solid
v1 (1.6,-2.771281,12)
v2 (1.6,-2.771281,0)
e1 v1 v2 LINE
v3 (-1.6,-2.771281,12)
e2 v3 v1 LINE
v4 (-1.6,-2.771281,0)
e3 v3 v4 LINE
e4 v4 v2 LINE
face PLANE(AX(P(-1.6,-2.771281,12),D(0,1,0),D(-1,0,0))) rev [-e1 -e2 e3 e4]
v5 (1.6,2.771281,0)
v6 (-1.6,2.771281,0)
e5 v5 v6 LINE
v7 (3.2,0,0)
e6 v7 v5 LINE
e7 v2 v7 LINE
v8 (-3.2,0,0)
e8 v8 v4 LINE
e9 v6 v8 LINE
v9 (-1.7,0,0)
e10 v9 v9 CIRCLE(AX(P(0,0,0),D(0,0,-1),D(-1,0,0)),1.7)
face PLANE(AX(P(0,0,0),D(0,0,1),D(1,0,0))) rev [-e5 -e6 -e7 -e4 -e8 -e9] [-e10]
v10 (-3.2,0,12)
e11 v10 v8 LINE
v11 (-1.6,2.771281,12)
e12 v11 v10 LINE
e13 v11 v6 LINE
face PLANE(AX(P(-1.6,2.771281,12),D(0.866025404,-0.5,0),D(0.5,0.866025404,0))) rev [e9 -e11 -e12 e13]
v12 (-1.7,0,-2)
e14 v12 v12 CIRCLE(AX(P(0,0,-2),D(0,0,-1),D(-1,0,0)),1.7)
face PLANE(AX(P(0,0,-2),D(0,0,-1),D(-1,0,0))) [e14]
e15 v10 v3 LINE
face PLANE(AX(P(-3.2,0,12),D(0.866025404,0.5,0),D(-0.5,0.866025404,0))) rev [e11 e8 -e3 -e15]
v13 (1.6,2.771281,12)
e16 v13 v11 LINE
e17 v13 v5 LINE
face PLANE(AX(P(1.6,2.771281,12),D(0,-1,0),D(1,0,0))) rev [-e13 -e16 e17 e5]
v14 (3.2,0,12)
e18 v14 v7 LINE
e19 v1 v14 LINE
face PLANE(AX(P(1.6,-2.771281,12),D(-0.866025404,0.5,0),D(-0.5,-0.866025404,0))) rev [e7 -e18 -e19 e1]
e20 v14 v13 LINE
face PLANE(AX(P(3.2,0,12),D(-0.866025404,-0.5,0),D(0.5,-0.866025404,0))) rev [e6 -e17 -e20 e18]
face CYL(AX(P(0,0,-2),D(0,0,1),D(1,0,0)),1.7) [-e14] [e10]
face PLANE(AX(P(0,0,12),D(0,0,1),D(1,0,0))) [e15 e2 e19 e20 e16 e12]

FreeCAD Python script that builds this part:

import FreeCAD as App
import Part
import Sketcher

V = App.Vector
Q = App.Units.Quantity


def add_polygon(sketch, points):
    """Adds a closed chain of lines whose ends are joined by coincident constraints."""
    first, n = sketch.GeometryCount, len(points)
    for a, b in zip(points, points[1:] + points[:1]):
        sketch.addGeometry(Part.LineSegment(App.Vector(*a, 0), App.Vector(*b, 0)), False)
    for i in range(n):
        sketch.addConstraint(Sketcher.Constraint("Coincident", first + i, 2, first + (i + 1) % n, 1))

doc = App.newDocument("Part")
body = doc.addObject("PartDesign::Body", "Body")

# Sketch on XY plane
sketch1 = doc.addObject("Sketcher::SketchObject", "Sketch")
body.addObject(sketch1)
sketch1.AttachmentSupport = (doc.XY_Plane, [""])
sketch1.MapMode = "FlatFace"
add_polygon(sketch1, [(1.6, 2.8), (-1.6, 2.8), (-3.2, 0), (-1.6, -2.8), (1.6, -2.8), (3.2, 0)])  # lines 0-5
sketch1.addConstraint([
    Sketcher.Constraint("Horizontal", 0),
    Sketcher.Constraint("Horizontal", 3),
    Sketcher.Constraint("Symmetric", 0, 2, 3, 2, -1, 1),
    Sketcher.Constraint("Symmetric", 1, 2, 4, 2, -1, 1),
    Sketcher.Constraint("PointOnObject", 1, 2, -1),
    Sketcher.Constraint("Parallel", 2, 5),
    Sketcher.Constraint("Vertical", 0, 2, 2, 2),
    Sketcher.Constraint("Angle", 1, Q("-120 deg")),
    Sketcher.Constraint("DistanceX", 0, 2, 0, 1, Q("3.2 mm")),
    Sketcher.Constraint("Distance", 1, Q("3.2 mm")),
])
pad1 = doc.addObject("PartDesign::Pad", "Pad")
body.addObject(pad1)
pad1.Profile = sketch1
pad1.Length = 12

# Sketch on XY plane
sketch2 = doc.addObject("Sketcher::SketchObject", "Sketch001")
body.addObject(sketch2)
sketch2.AttachmentSupport = (doc.XY_Plane, [""])
sketch2.MapMode = "FlatFace"
sketch2.addGeometry(Part.Circle(V(0, 0, 0), V(0, 0, 1), 1.7), False)
sketch2.addConstraint([
    Sketcher.Constraint("Coincident", 0, 3, -1, 1),
    Sketcher.Constraint("Diameter", 0, Q("3.4 mm")),
])
pad2 = doc.addObject("PartDesign::Pad", "Pad001")
body.addObject(pad2)
pad2.Profile = sketch2
pad2.Length = 2
pad2.Reversed = True

doc.recompute()
